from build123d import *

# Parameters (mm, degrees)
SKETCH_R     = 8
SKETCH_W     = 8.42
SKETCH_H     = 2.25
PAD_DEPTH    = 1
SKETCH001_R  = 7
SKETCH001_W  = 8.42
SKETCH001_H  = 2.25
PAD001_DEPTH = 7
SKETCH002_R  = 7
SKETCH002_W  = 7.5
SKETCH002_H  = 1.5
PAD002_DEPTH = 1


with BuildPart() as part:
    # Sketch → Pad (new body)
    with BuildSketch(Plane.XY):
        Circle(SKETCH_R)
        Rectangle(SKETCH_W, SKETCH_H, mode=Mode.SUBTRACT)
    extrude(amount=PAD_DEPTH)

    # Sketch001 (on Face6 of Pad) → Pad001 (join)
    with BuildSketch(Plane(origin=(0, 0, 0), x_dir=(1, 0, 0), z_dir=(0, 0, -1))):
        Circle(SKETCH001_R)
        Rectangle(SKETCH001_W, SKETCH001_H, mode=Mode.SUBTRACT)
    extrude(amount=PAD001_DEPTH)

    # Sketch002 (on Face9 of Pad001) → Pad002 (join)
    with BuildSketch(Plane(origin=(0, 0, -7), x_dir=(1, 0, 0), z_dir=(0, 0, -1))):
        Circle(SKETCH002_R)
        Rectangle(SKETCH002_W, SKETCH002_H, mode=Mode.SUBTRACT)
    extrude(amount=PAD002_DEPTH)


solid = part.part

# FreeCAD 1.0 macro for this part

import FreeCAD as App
import Part
import Sketcher
from FreeCAD import Vector

doc = App.newDocument("Part")
body = doc.addObject("PartDesign::Body", "Body")

# Sketch on XY plane
sketch1 = body.newObject("Sketcher::SketchObject", "Sketch")
sketch1.AttachmentSupport = (doc.getObject("XY_Plane"), [""])
sketch1.MapMode = "FlatFace"
sketch1.addGeometry(Part.Circle(Vector(0, 0, 0), Vector(0, 0, 1), 8), False)
sketch1.addGeometry(Part.LineSegment(Vector(4.2, -1.1, 0), Vector(-4.2, -1.1, 0)), False)
sketch1.addGeometry(Part.LineSegment(Vector(-4.2, -1.1, 0), Vector(-4.2, 1.1, 0)), False)
sketch1.addGeometry(Part.LineSegment(Vector(-4.2, 1.1, 0), Vector(4.2, 1.1, 0)), False)
sketch1.addGeometry(Part.LineSegment(Vector(4.2, 1.1, 0), Vector(4.2, -1.1, 0)), False)
sketch1.addConstraint(Sketcher.Constraint("Coincident", 1, 2, 2, 1))
sketch1.addConstraint(Sketcher.Constraint("Coincident", 2, 2, 3, 1))
sketch1.addConstraint(Sketcher.Constraint("Coincident", 3, 2, 4, 1))
sketch1.addConstraint(Sketcher.Constraint("Coincident", 4, 2, 1, 1))
sketch1.addConstraint(Sketcher.Constraint("Horizontal", 1))
sketch1.addConstraint(Sketcher.Constraint("Vertical", 2))
sketch1.addConstraint(Sketcher.Constraint("Horizontal", 3))
sketch1.addConstraint(Sketcher.Constraint("Vertical", 4))
sketch1.addConstraint(Sketcher.Constraint("Coincident", 0, 3, -1, 1))
sketch1.addConstraint(Sketcher.Constraint("Symmetric", 1, 2, 3, 2, -1, 1))
sketch1.addConstraint(Sketcher.Constraint("Diameter", 0, 16.0))
sketch1.addConstraint(Sketcher.Constraint("DistanceX", 1, 2, 1, 1, 8.42))
sketch1.addConstraint(Sketcher.Constraint("DistanceY", 2, 1, 2, 2, 2.25))
pad1 = body.newObject("PartDesign::Pad", "Pad")
pad1.Profile = sketch1
pad1.Length = 1

# Sketch on XY plane
sketch2 = body.newObject("Sketcher::SketchObject", "Sketch001")
sketch2.AttachmentSupport = (doc.getObject("XY_Plane"), [""])
sketch2.MapMode = "FlatFace"
sketch2.addGeometry(Part.Circle(Vector(0, 0, 0), Vector(0, 0, 1), 7), False)
sketch2.addGeometry(Part.LineSegment(Vector(4.2, 1.1, 0), Vector(-4.2, 1.1, 0)), False)
sketch2.addGeometry(Part.LineSegment(Vector(-4.2, 1.1, 0), Vector(-4.2, -1.1, 0)), False)
sketch2.addGeometry(Part.LineSegment(Vector(-4.2, -1.1, 0), Vector(4.2, -1.1, 0)), False)
sketch2.addGeometry(Part.LineSegment(Vector(4.2, -1.1, 0), Vector(4.2, 1.1, 0)), False)
sketch2.addConstraint(Sketcher.Constraint("Coincident", 1, 2, 2, 1))
sketch2.addConstraint(Sketcher.Constraint("Coincident", 2, 2, 3, 1))
sketch2.addConstraint(Sketcher.Constraint("Coincident", 3, 2, 4, 1))
sketch2.addConstraint(Sketcher.Constraint("Coincident", 4, 2, 1, 1))
sketch2.addConstraint(Sketcher.Constraint("Horizontal", 1))
sketch2.addConstraint(Sketcher.Constraint("Vertical", 2))
sketch2.addConstraint(Sketcher.Constraint("Horizontal", 3))
sketch2.addConstraint(Sketcher.Constraint("Vertical", 4))
sketch2.addConstraint(Sketcher.Constraint("Coincident", 0, 3, -1, 1))
sketch2.addConstraint(Sketcher.Constraint("Symmetric", 1, 2, 3, 2, -1, 1))
sketch2.addConstraint(Sketcher.Constraint("Diameter", 0, 14.0))
sketch2.addConstraint(Sketcher.Constraint("DistanceX", 1, 2, 1, 1, 8.42))
sketch2.addConstraint(Sketcher.Constraint("DistanceY", 2, 2, 2, 1, 2.25))
pad2 = body.newObject("PartDesign::Pad", "Pad001")
pad2.Profile = sketch2
pad2.Length = 7
pad2.Reversed = True

# Sketch on XY plane
sketch3 = body.newObject("Sketcher::SketchObject", "Sketch002")
sketch3.AttachmentSupport = (doc.getObject("XY_Plane"), [""])
sketch3.MapMode = "FlatFace"
sketch3.AttachmentOffset = App.Placement(Vector(0, 0, -7), App.Rotation())
sketch3.addGeometry(Part.Circle(Vector(0, 0, 0), Vector(0, 0, 1), 7), False)
sketch3.addGeometry(Part.LineSegment(Vector(3.8, 0.8, 0), Vector(-3.8, 0.8, 0)), False)
sketch3.addGeometry(Part.LineSegment(Vector(-3.8, 0.8, 0), Vector(-3.8, -0.8, 0)), False)
sketch3.addGeometry(Part.LineSegment(Vector(-3.8, -0.8, 0), Vector(3.8, -0.8, 0)), False)
sketch3.addGeometry(Part.LineSegment(Vector(3.8, -0.8, 0), Vector(3.8, 0.8, 0)), False)
sketch3.addConstraint(Sketcher.Constraint("Coincident", 1, 2, 2, 1))
sketch3.addConstraint(Sketcher.Constraint("Coincident", 2, 2, 3, 1))
sketch3.addConstraint(Sketcher.Constraint("Coincident", 3, 2, 4, 1))
sketch3.addConstraint(Sketcher.Constraint("Coincident", 4, 2, 1, 1))
sketch3.addConstraint(Sketcher.Constraint("Horizontal", 1))
sketch3.addConstraint(Sketcher.Constraint("Vertical", 2))
sketch3.addConstraint(Sketcher.Constraint("Horizontal", 3))
sketch3.addConstraint(Sketcher.Constraint("Vertical", 4))
sketch3.addConstraint(Sketcher.Constraint("Coincident", 0, 3, -1, 1))
sketch3.addConstraint(Sketcher.Constraint("Symmetric", 1, 2, 3, 2, -1, 1))
sketch3.addConstraint(Sketcher.Constraint("Diameter", 0, 14.0))
sketch3.addConstraint(Sketcher.Constraint("DistanceX", 1, 2, 1, 1, 7.5))
sketch3.addConstraint(Sketcher.Constraint("DistanceY", 2, 2, 2, 1, 1.5))
pad3 = body.newObject("PartDesign::Pad", "Pad002")
pad3.Profile = sketch3
pad3.Length = 1
pad3.Reversed = True

doc.recompute()
